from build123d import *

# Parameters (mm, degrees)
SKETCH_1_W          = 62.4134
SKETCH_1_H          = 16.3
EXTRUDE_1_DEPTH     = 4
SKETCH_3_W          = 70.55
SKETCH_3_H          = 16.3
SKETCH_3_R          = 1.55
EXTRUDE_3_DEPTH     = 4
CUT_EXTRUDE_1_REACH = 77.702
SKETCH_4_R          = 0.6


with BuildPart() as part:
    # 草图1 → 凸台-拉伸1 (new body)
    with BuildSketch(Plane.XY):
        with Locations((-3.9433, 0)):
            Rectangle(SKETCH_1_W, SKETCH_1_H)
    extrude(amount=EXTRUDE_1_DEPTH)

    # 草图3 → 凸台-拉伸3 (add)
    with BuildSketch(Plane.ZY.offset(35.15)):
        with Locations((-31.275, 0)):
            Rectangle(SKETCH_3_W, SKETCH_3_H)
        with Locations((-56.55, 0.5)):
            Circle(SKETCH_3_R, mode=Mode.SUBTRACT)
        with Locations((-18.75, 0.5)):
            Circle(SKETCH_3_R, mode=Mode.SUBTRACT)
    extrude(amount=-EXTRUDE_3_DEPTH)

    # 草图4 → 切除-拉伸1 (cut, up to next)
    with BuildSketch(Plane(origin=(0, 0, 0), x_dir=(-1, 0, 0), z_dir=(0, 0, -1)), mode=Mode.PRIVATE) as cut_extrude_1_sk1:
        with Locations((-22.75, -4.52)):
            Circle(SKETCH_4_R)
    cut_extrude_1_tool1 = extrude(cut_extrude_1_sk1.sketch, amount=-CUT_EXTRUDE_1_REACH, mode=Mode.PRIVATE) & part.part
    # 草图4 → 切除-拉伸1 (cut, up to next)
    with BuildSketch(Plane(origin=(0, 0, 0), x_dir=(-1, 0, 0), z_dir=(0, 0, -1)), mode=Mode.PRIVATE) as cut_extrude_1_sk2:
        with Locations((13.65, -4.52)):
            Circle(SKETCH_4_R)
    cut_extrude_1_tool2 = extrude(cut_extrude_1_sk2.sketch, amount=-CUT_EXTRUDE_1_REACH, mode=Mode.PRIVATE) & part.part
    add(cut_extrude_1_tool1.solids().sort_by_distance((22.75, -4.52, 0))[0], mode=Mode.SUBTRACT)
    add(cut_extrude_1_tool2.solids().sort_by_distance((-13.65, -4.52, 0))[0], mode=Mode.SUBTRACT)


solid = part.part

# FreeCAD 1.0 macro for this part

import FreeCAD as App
import Part
import Sketcher
from FreeCAD import Vector
Q = App.Units.Quantity


def add_polygon(sketch, points):
    """Adds a closed chain of lines whose ends are joined by coincident constraints."""
    first, n = sketch.GeometryCount, len(points)
    for a, b in zip(points, points[1:] + points[:1]):
        sketch.addGeometry(Part.LineSegment(App.Vector(*a, 0), App.Vector(*b, 0)), False)
    for i in range(n):
        sketch.addConstraint(Sketcher.Constraint("Coincident", first + i, 2, first + (i + 1) % n, 1))

doc = App.newDocument("Part")
body = doc.addObject("PartDesign::Body", "Body")

sketch1 = doc.addObject("Sketcher::SketchObject", "Sketch")
body.addObject(sketch1)
sketch1.AttachmentSupport = (doc.XY_Plane, [""])
sketch1.MapMode = "FlatFace"
add_polygon(sketch1, [(-35, 8), (-35, -8), (27, -8), (27, 8)])
sketch1.addConstraint(Sketcher.Constraint("Vertical", 0))
sketch1.addConstraint(Sketcher.Constraint("Horizontal", 1))
sketch1.addConstraint(Sketcher.Constraint("Vertical", 2))
sketch1.addConstraint(Sketcher.Constraint("Horizontal", 3))
sketch1.addConstraint(Sketcher.Constraint("DistanceY", 0, 2, 0, 1, Q("16.3 mm")))
sketch1.addConstraint(Sketcher.Constraint("DistanceX", 0, 2, -1, 1, Q("35.15 mm")))
sketch1.addConstraint(Sketcher.Constraint("DistanceY", 0, 2, -1, 1, Q("8.15 mm")))
sketch1.addConstraint(Sketcher.Constraint("DistanceX", 1, 1, 1, 2, Q("62.4134 mm")))
pad1 = doc.addObject("PartDesign::Pad", "Pad")
body.addObject(pad1)
pad1.Profile = sketch1
pad1.Length = 4

sketch2 = doc.addObject("Sketcher::SketchObject", "Sketch001")
body.addObject(sketch2)
sketch2.AttachmentSupport = (doc.YZ_Plane, [""])
sketch2.MapMode = "FlatFace"
sketch2.AttachmentOffset = App.Placement(Vector(0, 0, -35.15), App.Rotation())
add_polygon(sketch2, [(8.2, -66.5), (-8.2, -66.5), (-8.2, 4), (8.2, 4)])
sketch2.addGeometry(Part.Circle(Vector(0.5, -56.5, 0), Vector(0, 0, 1), 1.6), False)
sketch2.addGeometry(Part.Circle(Vector(0.5, -18.8, 0), Vector(0, 0, 1), 1.6), False)
sketch2.addConstraint(Sketcher.Constraint("Horizontal", 0))
sketch2.addConstraint(Sketcher.Constraint("Vertical", 1))
sketch2.addConstraint(Sketcher.Constraint("Horizontal", 2))
sketch2.addConstraint(Sketcher.Constraint("Vertical", 3))
sketch2.addConstraint(Sketcher.Constraint("Equal", 4, 5))
sketch2.addConstraint(Sketcher.Constraint("Vertical", 4, 3, 5, 3))
sketch2.addConstraint(Sketcher.Constraint("Diameter", 4, Q("3.1 mm")))
sketch2.addConstraint(Sketcher.Constraint("DistanceX", 0, 2, 0, 1, Q("16.3 mm")))
sketch2.addConstraint(Sketcher.Constraint("DistanceY", -1, 1, 1, 2, Q("4 mm")))
sketch2.addConstraint(Sketcher.Constraint("DistanceY", 0, 2, 4, 3, Q("10 mm")))
sketch2.addConstraint(Sketcher.Constraint("DistanceY", 1, 1, 1, 2, Q("70.55 mm")))
sketch2.addConstraint(Sketcher.Constraint("DistanceX", -1, 1, 4, 3, Q("0.5 mm")))
sketch2.addConstraint(Sketcher.Constraint("DistanceY", 4, 3, 5, 3, Q("37.8 mm")))
sketch2.addConstraint(Sketcher.Constraint("DistanceX", 0, 2, -1, 1, Q("8.15 mm")))
pad2 = doc.addObject("PartDesign::Pad", "Pad001")
body.addObject(pad2)
pad2.Profile = sketch2
pad2.Length = 4

sketch3 = doc.addObject("Sketcher::SketchObject", "Sketch002")
body.addObject(sketch3)
sketch3.AttachmentSupport = (doc.XY_Plane, [""])
sketch3.MapMode = "FlatFace"
sketch3.addGeometry(Part.Circle(Vector(22.8, -4.5, 0), Vector(0, 0, 1), 0.6), False)
sketch3.addConstraint(Sketcher.Constraint("Diameter", 0, Q("1.2 mm")))
sketch3.addConstraint(Sketcher.Constraint("DistanceX", -1, 1, 0, 3, Q("22.75 mm")))
sketch3.addConstraint(Sketcher.Constraint("DistanceY", 0, 3, -1, 1, Q("4.52 mm")))
pocket1 = doc.addObject("PartDesign::Pocket", "Pocket")
body.addObject(pocket1)
pocket1.Profile = sketch3
pocket1.Type = "UpToFirst"
pocket1.Reversed = True

sketch4 = doc.addObject("Sketcher::SketchObject", "Sketch003")
body.addObject(sketch4)
sketch4.AttachmentSupport = (doc.XY_Plane, [""])
sketch4.MapMode = "FlatFace"
sketch4.addGeometry(Part.Circle(Vector(-13.7, -4.5, 0), Vector(0, 0, 1), 0.6), False)
sketch4.addConstraint(Sketcher.Constraint("Diameter", 0, Q("1.2 mm")))
sketch4.addConstraint(Sketcher.Constraint("DistanceX", 0, 3, -1, 1, Q("13.65 mm")))
sketch4.addConstraint(Sketcher.Constraint("DistanceY", 0, 3, -1, 1, Q("4.52 mm")))
pocket2 = doc.addObject("PartDesign::Pocket", "Pocket001")
body.addObject(pocket2)
pocket2.Profile = sketch4
pocket2.Type = "UpToFirst"
pocket2.Reversed = True

doc.recompute()
